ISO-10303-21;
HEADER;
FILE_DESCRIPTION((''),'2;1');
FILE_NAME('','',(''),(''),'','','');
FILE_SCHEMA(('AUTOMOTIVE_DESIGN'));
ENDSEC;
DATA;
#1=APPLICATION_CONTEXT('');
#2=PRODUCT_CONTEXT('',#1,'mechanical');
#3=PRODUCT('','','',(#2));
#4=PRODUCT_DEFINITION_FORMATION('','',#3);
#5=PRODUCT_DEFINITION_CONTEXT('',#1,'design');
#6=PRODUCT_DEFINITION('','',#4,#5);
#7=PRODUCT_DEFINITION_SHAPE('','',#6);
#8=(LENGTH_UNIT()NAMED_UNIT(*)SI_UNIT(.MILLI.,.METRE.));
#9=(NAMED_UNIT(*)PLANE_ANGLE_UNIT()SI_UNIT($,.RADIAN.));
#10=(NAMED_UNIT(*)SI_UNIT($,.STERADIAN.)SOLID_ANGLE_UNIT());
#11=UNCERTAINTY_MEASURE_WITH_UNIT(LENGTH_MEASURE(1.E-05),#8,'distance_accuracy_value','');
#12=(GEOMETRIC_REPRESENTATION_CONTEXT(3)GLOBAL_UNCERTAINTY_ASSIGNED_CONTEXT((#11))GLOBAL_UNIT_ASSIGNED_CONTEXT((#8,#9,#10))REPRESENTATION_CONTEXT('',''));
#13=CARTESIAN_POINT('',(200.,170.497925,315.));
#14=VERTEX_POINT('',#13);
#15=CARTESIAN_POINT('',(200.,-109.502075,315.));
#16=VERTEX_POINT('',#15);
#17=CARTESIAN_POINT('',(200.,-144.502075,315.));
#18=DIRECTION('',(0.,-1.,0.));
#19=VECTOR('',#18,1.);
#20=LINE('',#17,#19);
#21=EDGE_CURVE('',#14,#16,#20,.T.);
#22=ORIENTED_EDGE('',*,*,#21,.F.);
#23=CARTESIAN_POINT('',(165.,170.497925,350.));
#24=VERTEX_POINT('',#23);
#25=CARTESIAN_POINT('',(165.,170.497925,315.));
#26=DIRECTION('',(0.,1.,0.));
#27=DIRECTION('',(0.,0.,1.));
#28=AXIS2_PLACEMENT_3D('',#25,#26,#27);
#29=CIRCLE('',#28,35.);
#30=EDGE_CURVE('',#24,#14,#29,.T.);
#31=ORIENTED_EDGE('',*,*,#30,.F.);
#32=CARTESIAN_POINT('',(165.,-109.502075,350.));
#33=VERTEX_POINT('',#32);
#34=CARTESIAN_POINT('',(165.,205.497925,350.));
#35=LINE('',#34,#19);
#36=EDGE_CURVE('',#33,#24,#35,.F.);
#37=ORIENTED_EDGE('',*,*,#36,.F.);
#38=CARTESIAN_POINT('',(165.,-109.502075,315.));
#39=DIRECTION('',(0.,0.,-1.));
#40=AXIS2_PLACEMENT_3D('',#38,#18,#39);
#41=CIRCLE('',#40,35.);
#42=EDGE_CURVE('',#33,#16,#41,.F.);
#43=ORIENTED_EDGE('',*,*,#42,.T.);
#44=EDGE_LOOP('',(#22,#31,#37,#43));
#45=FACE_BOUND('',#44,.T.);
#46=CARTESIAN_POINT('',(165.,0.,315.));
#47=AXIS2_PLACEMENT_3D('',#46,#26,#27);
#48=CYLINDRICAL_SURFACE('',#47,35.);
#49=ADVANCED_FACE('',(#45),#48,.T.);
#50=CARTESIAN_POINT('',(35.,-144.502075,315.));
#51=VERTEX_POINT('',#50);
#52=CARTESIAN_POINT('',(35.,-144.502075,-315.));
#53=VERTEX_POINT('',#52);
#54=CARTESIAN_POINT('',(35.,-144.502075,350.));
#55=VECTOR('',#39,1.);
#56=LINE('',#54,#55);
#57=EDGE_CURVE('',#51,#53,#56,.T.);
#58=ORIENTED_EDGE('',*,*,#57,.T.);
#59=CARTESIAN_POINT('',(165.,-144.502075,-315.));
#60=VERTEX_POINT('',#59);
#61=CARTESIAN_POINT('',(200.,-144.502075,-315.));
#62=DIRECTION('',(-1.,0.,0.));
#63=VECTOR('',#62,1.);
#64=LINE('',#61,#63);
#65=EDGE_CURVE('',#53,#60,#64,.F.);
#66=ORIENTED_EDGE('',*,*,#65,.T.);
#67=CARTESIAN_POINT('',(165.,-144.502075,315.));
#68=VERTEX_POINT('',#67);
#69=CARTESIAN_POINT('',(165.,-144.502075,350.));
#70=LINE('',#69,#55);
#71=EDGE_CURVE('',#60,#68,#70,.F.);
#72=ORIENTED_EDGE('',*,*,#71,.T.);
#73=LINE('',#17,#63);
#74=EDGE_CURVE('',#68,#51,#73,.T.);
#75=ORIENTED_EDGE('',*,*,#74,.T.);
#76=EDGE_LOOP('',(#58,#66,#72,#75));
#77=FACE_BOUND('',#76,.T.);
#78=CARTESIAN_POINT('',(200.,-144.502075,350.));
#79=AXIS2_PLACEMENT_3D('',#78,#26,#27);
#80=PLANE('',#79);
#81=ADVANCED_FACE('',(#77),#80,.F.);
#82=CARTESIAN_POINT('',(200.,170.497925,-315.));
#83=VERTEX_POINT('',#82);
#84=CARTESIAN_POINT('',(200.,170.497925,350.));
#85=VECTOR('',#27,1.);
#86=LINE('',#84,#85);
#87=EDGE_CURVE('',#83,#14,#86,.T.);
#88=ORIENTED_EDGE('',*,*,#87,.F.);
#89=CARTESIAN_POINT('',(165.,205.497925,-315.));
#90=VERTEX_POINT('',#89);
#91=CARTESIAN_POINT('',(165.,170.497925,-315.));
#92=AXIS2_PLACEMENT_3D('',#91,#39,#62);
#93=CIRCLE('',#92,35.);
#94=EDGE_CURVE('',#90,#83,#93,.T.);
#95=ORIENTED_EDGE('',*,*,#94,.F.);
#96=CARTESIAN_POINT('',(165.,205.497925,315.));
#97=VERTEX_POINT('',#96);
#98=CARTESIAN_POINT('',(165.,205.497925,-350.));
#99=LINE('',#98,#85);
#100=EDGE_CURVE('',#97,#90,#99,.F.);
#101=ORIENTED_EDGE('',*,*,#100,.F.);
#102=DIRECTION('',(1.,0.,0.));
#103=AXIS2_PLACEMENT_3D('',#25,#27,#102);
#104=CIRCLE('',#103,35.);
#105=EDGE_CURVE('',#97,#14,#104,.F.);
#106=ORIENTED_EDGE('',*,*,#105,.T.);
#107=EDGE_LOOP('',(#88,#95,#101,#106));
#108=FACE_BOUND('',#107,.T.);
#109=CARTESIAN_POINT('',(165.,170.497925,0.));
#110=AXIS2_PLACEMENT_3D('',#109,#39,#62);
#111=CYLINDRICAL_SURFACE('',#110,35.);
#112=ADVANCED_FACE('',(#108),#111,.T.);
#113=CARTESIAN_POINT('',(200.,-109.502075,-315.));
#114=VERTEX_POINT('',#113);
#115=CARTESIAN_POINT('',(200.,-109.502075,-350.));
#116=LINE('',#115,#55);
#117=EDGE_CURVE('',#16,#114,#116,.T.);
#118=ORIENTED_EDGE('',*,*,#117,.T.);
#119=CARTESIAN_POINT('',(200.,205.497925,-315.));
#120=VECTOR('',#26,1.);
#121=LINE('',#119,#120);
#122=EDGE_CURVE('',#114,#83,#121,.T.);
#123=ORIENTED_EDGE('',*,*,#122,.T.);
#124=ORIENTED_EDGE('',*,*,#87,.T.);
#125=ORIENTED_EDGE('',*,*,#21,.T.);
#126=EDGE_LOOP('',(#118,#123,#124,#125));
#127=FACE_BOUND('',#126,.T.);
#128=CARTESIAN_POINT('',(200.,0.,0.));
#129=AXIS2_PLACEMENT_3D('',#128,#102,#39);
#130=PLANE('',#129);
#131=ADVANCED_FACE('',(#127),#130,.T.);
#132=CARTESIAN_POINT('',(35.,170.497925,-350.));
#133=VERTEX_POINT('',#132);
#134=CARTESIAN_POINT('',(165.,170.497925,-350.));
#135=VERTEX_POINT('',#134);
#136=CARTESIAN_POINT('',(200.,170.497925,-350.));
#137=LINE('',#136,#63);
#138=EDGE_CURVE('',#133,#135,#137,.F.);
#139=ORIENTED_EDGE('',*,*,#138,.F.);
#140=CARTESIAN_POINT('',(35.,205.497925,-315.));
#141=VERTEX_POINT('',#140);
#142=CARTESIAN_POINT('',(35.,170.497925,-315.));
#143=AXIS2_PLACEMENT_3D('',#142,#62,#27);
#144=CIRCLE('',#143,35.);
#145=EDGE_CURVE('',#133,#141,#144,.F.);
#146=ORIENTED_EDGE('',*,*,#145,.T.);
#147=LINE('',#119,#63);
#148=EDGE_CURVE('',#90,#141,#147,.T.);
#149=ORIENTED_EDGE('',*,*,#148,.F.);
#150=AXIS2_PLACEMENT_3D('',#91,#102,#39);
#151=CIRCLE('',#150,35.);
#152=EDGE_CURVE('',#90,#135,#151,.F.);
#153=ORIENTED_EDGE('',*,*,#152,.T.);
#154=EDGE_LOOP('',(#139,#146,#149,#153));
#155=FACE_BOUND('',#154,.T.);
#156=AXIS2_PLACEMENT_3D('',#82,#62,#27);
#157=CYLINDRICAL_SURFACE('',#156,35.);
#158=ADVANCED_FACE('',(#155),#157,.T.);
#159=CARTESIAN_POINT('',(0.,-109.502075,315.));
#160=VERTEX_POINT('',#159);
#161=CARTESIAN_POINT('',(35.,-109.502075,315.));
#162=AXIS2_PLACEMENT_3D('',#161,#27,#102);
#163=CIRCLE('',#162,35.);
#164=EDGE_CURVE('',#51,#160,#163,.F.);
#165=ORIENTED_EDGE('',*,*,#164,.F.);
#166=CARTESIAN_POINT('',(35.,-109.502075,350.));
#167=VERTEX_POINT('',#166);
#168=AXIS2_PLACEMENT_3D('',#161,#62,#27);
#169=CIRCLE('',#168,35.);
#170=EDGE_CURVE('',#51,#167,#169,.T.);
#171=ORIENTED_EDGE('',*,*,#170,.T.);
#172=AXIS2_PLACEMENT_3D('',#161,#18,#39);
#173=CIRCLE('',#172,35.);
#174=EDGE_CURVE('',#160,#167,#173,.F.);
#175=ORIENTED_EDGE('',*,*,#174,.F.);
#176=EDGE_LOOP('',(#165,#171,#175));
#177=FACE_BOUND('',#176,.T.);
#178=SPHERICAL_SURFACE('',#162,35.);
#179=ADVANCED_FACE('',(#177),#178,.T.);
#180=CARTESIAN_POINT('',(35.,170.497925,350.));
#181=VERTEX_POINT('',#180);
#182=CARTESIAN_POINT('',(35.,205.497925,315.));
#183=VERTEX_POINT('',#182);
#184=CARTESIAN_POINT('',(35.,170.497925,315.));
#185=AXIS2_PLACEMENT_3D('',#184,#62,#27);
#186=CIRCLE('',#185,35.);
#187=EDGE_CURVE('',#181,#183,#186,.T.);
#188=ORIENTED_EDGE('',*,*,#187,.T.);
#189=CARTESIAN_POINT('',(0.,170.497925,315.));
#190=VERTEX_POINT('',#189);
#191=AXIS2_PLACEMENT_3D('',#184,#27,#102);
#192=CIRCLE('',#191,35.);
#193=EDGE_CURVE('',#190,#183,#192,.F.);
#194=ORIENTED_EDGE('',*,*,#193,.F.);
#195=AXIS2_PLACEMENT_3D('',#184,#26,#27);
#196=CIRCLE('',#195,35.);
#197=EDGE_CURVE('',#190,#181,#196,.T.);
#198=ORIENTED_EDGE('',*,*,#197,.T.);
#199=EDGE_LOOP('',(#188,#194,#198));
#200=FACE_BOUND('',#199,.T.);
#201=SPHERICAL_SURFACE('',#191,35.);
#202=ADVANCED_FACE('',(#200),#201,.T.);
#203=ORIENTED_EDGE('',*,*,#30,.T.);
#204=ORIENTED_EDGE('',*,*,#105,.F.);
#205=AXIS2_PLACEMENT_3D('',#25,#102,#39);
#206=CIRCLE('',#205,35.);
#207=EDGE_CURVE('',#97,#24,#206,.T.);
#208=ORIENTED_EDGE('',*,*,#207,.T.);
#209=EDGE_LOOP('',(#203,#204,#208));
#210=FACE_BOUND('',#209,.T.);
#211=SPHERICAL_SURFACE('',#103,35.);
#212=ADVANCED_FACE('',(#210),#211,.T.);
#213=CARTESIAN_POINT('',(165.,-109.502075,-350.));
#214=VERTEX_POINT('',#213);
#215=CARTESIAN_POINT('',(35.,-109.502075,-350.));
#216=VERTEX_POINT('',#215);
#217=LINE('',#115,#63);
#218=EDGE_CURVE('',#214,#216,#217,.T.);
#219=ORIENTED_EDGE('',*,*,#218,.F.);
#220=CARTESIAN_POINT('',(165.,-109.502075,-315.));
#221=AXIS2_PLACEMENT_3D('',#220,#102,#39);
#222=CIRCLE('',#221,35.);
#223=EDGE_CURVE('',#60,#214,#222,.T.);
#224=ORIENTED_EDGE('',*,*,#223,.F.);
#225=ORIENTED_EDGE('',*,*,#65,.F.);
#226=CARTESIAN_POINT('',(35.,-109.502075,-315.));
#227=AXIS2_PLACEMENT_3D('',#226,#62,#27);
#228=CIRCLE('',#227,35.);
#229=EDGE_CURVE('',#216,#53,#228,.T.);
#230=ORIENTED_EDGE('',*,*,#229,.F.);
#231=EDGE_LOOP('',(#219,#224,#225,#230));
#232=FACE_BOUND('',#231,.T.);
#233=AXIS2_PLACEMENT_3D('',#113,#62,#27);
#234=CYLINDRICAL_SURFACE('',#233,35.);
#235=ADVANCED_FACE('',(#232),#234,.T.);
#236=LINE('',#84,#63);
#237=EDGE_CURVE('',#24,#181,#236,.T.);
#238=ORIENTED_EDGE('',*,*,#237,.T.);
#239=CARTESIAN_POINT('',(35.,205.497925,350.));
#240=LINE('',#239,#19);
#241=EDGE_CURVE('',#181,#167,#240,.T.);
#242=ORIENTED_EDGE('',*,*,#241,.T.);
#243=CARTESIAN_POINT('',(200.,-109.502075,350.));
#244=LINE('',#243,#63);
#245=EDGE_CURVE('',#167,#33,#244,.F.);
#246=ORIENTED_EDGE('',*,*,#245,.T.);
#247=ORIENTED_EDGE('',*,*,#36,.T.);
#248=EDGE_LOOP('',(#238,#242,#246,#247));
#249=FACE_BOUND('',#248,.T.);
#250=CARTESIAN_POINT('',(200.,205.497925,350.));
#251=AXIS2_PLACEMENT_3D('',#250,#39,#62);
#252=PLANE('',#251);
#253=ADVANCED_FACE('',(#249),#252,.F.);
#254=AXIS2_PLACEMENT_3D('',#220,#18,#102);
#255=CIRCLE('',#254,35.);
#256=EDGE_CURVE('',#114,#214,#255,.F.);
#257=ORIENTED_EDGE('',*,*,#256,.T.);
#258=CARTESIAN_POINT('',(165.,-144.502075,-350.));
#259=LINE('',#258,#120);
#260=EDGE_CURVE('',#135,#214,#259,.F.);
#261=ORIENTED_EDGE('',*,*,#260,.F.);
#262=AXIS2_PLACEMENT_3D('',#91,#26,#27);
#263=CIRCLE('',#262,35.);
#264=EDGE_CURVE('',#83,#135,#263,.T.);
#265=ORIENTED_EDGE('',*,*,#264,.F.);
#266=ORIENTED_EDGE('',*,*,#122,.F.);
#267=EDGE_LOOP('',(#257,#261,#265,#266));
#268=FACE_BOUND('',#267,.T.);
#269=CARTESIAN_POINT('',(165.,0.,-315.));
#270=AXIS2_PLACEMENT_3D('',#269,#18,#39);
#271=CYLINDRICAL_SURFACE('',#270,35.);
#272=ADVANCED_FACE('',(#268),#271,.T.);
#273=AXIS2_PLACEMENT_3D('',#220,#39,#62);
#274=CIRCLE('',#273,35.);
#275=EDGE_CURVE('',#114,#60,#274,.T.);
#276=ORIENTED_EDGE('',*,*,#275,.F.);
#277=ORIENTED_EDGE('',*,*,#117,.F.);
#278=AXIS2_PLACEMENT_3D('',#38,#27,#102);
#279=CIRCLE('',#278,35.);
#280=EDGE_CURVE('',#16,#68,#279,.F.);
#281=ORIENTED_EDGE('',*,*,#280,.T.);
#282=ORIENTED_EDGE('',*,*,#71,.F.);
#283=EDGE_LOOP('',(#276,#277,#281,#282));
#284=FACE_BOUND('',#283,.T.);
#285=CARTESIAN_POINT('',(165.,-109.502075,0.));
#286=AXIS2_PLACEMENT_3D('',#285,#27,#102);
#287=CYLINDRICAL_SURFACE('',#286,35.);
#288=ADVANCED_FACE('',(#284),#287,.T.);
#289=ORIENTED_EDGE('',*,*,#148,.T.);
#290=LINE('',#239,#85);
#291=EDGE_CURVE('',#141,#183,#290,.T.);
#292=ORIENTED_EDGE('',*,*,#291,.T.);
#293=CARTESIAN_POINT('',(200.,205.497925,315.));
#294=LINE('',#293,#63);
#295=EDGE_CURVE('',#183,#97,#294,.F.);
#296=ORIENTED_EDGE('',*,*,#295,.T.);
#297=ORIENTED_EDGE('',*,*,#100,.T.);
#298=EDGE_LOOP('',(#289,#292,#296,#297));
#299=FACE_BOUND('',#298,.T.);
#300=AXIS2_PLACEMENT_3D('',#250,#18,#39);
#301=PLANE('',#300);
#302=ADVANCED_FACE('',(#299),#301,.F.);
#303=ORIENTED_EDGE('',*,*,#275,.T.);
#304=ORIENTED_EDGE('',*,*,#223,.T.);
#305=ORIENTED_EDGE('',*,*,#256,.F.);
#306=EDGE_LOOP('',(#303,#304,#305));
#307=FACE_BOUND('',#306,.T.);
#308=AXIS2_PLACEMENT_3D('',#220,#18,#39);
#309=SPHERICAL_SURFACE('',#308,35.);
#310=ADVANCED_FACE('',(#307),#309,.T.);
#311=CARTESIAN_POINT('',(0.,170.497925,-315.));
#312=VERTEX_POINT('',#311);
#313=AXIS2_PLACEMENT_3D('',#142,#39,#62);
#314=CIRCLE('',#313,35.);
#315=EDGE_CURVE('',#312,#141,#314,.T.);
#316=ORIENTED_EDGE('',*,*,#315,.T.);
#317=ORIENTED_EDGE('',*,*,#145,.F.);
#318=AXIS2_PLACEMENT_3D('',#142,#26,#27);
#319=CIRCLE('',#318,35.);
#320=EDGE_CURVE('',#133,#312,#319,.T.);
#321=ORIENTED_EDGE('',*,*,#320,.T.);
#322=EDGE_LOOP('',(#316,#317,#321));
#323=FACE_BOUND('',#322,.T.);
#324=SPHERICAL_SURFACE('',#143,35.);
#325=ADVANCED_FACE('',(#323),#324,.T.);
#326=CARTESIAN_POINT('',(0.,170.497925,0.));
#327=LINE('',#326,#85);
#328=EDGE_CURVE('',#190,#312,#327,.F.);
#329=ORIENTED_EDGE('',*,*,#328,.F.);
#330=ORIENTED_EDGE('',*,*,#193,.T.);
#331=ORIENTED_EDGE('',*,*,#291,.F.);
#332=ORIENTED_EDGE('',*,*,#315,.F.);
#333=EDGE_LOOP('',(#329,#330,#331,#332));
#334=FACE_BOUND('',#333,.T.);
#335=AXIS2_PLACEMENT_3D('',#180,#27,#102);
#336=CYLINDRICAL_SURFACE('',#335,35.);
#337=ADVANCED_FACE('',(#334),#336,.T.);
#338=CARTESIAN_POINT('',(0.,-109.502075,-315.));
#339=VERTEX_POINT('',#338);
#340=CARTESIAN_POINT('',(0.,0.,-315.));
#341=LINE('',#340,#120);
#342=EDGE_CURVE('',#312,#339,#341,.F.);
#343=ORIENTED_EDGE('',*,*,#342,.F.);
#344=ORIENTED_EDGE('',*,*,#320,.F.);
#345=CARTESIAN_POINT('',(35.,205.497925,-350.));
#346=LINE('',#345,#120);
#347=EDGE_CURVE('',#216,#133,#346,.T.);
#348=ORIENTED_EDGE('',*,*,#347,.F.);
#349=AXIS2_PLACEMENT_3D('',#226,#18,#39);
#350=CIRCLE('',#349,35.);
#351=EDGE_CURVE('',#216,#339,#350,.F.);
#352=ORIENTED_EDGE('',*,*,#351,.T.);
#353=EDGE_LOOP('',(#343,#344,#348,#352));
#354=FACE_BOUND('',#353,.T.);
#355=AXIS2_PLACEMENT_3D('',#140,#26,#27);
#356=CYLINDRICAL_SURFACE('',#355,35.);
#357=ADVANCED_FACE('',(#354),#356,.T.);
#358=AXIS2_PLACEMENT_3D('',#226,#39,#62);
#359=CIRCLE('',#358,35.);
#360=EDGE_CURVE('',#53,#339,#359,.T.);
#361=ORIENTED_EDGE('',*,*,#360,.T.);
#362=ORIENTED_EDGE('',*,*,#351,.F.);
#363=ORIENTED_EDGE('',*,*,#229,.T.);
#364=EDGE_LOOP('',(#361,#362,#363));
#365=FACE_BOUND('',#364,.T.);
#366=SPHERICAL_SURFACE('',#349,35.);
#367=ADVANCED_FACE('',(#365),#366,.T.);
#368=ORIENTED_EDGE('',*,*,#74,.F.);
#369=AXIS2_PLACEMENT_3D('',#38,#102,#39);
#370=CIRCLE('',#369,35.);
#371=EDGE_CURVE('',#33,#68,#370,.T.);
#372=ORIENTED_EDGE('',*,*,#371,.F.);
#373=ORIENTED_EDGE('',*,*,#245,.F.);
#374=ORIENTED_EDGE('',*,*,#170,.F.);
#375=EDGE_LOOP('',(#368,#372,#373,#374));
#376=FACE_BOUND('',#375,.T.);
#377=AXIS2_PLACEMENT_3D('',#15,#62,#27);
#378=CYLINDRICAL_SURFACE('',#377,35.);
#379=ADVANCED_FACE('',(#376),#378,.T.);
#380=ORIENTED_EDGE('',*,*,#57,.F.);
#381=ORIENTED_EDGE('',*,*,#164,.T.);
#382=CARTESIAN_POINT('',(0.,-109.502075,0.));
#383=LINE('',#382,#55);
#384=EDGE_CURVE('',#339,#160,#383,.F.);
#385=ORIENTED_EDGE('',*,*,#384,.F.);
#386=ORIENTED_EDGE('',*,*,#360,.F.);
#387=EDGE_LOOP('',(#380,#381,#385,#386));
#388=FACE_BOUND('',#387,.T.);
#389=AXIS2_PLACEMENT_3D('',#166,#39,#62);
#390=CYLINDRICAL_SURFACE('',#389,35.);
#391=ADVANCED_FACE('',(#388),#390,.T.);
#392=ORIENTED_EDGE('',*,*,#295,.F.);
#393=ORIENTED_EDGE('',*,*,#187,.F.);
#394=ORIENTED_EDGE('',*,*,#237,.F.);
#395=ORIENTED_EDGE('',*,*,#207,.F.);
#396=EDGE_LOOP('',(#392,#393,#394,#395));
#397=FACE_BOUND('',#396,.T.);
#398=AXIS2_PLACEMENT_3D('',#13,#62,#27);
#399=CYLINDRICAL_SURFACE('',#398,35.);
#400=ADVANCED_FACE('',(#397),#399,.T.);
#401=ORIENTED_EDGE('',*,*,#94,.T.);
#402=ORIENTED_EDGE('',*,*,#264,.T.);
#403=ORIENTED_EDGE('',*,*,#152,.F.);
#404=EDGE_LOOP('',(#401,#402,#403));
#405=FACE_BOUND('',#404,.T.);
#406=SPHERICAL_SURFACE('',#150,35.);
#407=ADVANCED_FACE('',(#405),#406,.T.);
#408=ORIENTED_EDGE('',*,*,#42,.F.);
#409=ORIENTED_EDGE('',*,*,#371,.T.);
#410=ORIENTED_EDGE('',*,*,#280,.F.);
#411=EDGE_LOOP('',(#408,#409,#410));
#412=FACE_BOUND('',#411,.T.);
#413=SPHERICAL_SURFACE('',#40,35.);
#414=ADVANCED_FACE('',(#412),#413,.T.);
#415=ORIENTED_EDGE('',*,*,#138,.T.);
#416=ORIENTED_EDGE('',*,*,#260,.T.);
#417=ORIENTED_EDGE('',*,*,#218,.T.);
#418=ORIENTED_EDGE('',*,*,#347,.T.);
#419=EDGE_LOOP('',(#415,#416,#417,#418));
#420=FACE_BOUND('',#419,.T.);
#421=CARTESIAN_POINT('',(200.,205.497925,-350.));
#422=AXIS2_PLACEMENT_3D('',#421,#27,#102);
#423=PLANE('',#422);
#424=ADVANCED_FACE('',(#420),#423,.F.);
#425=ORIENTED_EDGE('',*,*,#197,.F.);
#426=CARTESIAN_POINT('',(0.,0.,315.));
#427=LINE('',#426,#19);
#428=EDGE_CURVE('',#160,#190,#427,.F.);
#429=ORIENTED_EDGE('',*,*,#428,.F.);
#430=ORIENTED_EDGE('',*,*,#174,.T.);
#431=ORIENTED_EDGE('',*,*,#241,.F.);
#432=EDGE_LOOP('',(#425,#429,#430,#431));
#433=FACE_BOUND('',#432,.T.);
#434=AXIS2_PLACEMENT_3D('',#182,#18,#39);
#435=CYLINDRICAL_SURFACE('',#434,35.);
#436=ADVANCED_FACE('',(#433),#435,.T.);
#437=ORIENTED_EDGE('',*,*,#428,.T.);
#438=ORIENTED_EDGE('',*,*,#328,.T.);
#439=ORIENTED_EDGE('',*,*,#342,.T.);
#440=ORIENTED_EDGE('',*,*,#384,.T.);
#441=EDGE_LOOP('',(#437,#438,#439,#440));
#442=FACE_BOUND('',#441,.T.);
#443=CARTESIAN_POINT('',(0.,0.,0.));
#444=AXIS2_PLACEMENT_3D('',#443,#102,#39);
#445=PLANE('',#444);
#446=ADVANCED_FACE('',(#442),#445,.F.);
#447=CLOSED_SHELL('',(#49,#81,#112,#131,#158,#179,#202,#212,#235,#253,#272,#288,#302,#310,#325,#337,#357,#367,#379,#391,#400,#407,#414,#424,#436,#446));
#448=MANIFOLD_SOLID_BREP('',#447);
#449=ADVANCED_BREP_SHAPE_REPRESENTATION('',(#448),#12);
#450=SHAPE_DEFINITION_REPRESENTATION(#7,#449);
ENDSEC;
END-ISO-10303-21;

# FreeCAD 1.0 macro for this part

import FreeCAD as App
import Part
import Sketcher

V = App.Vector

doc = App.newDocument("Part")
params = doc.addObject("Spreadsheet::Sheet", "Params")
for row, (alias, value) in enumerate([
    ("sketch1_width", "350 mm"),
    ("sketch1_height", "700 mm"),
    ("pad1_length", "200 mm"),
    ("fillet_radius", "35 mm"),
], start=1):
    params.set(f"A{row}", alias)
    params.set(f"B{row}", "=" + value)
    params.setAlias(f"B{row}", alias)

body = doc.addObject("PartDesign::Body", "Body")

# Sketch on YZ plane
sketch1 = body.newObject("Sketcher::SketchObject", "Sketch")
sketch1.AttachmentSupport = (doc.getObject("YZ_Plane"), [""])
sketch1.MapMode = "FlatFace"
sketch1.addGeometry([
    Part.LineSegment(V(205.497925, 350, 0), V(-144.502075, 350, 0)),
    Part.LineSegment(V(-144.502075, 350, 0), V(-144.502075, -350, 0)),
    Part.LineSegment(V(-144.502075, -350, 0), V(205.497925, -350, 0)),
    Part.LineSegment(V(205.497925, -350, 0), V(205.497925, 350, 0)),
], False)
sketch1.addConstraint([
    Sketcher.Constraint("Coincident", 0, 2, 1, 1),
    Sketcher.Constraint("Coincident", 1, 2, 2, 1),
    Sketcher.Constraint("Coincident", 2, 2, 3, 1),
    Sketcher.Constraint("Coincident", 3, 2, 0, 1),
    Sketcher.Constraint("Horizontal", 0),
    Sketcher.Constraint("Vertical", 1),
    Sketcher.Constraint("Horizontal", 2),
    Sketcher.Constraint("Vertical", 3),
    Sketcher.Constraint("DistanceX", 0, 2, 0, 1, 350.0),
    Sketcher.Constraint("DistanceY", 1, 2, 1, 1, 700.0),
    Sketcher.Constraint("DistanceY", -1, 1, 0, 2, 350.0),
    Sketcher.Constraint("DistanceX", 0, 2, -1, 1, 144.502075),
])
sketch1.setExpression("Constraints[8]", "Params.sketch1_width")
sketch1.setExpression("Constraints[9]", "Params.sketch1_height")
pad1 = body.newObject("PartDesign::Pad", "Pad")
pad1.Profile = sketch1
pad1.setExpression("Length", "Params.pad1_length")
doc.recompute()

fillet = body.newObject("PartDesign::Fillet", "Fillet")
fillet.Base = (pad1, ["Edge1"])
fillet.UseAllEdges = True
fillet.setExpression("Radius", "Params.fillet_radius")

doc.recompute()
